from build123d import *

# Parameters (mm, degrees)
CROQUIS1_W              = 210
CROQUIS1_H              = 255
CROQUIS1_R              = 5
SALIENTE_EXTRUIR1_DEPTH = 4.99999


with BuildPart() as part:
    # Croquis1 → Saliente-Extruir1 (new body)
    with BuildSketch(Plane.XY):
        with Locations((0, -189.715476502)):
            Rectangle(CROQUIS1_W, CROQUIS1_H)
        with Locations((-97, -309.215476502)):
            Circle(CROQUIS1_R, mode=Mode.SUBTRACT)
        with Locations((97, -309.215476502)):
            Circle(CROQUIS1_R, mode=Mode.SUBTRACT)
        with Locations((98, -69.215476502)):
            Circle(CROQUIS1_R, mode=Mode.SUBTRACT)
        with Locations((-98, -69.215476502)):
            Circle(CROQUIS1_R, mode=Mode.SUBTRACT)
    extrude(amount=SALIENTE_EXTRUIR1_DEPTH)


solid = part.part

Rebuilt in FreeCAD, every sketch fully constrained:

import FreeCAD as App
import Part
import Sketcher

V = App.Vector


def add_polygon(sketch, points):
    """Adds a closed chain of lines whose ends are joined by coincident constraints."""
    first, n = sketch.GeometryCount, len(points)
    for a, b in zip(points, points[1:] + points[:1]):
        sketch.addGeometry(Part.LineSegment(App.Vector(*a, 0), App.Vector(*b, 0)), False)
    for i in range(n):
        sketch.addConstraint(Sketcher.Constraint("Coincident", first + i, 2, first + (i + 1) % n, 1))

doc = App.newDocument("Part")
params = doc.addObject("Spreadsheet::Sheet", "Params")
for row, (alias, value) in enumerate([
    ("sketch1_diameter", "10 mm"),
    ("sketch1_width", "210 mm"),
    ("sketch1_height", "255 mm"),
    ("pad1_length", "4.99999 mm"),
], start=1):
    params.set(f"A{row}", alias)
    params.set(f"B{row}", "=" + value)
    params.setAlias(f"B{row}", alias)

body = doc.addObject("PartDesign::Body", "Body")

# Sketch on XY plane
sketch1 = doc.addObject("Sketcher::SketchObject", "Sketch")
body.addObject(sketch1)
sketch1.AttachmentSupport = (doc.XY_Plane, [""])
sketch1.MapMode = "FlatFace"
add_polygon(sketch1, [(-105, -62), (-105, -317), (105, -317), (105, -62)])  # lines 0-3
sketch1.addGeometry(Part.Circle(V(-97, -309, 0), V(0, 0, 1), 5), False)  # 4
sketch1.addGeometry(Part.Circle(V(97, -309, 0), V(0, 0, 1), 5), False)  # 5
sketch1.addGeometry(Part.Circle(V(-98, -69, 0), V(0, 0, 1), 5), False)  # 6
sketch1.addGeometry(Part.Circle(V(98, -69, 0), V(0, 0, 1), 5), False)  # 7
sketch1.addConstraint([
    Sketcher.Constraint("Vertical", 0),
    Sketcher.Constraint("Horizontal", 1),
    Sketcher.Constraint("Vertical", 2),
    Sketcher.Constraint("Horizontal", 3),
    Sketcher.Constraint("Equal", 4, 5),
    Sketcher.Constraint("Equal", 5, 6),
    Sketcher.Constraint("Equal", 6, 7),
    Sketcher.Constraint("Symmetric", 4, 3, 5, 3, -2),
    Sketcher.Constraint("Symmetric", 6, 3, 7, 3, -2),
    Sketcher.Constraint("Diameter", 4, 10.0),
    Sketcher.Constraint("DistanceX", 1, 1, 1, 2, 210.0),
    Sketcher.Constraint("DistanceY", 0, 2, 0, 1, 255.0),
    Sketcher.Constraint("DistanceX", 4, 3, -1, 1, 97.0),
    Sketcher.Constraint("DistanceX", 6, 3, -1, 1, 98.0),
    Sketcher.Constraint("DistanceX", 0, 2, -1, 1, 105.0),
    Sketcher.Constraint("DistanceY", 4, 3, 6, 3, 240.0),
    Sketcher.Constraint("DistanceY", 0, 2, 4, 3, 8.0),
    Sketcher.Constraint("DistanceY", 4, 3, -1, 1, 309.215477),
])
sketch1.setExpression("Constraints[13]", "Params.sketch1_diameter")
sketch1.setExpression("Constraints[14]", "Params.sketch1_width")
sketch1.setExpression("Constraints[15]", "Params.sketch1_height")
pad1 = doc.addObject("PartDesign::Pad", "Pad")
body.addObject(pad1)
pad1.Profile = sketch1
pad1.setExpression("Length", "Params.pad1_length")

doc.recompute()
